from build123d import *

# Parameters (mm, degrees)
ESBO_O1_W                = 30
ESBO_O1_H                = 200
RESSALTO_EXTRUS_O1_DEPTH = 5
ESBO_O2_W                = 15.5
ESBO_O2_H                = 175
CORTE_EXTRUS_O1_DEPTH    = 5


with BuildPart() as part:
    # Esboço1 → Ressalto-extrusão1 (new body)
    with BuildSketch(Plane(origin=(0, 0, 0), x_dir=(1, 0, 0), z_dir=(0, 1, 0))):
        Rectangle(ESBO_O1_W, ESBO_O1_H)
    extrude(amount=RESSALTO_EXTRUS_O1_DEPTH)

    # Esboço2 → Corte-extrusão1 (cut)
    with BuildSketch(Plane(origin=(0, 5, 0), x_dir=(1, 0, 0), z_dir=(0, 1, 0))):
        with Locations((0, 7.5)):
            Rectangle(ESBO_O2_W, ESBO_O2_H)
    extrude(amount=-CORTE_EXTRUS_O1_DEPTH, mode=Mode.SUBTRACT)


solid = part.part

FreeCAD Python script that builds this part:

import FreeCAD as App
import Part
import Sketcher
Q = App.Units.Quantity

doc = App.newDocument("Part")
body = doc.addObject("PartDesign::Body", "Body")

sketch1 = doc.addObject("Sketcher::SketchObject", "Sketch")
body.addObject(sketch1)
sketch1.AttachmentSupport = (doc.XZ_Plane, [""])
sketch1.MapMode = "FlatFace"
sketch1.addGeometry(Part.LineSegment(App.Vector(-15, -100, 0), App.Vector(-15, 100, 0)), False)
sketch1.addGeometry(Part.LineSegment(App.Vector(-15, 100, 0), App.Vector(15, 100, 0)), False)
sketch1.addGeometry(Part.LineSegment(App.Vector(15, 100, 0), App.Vector(15, -100, 0)), False)
sketch1.addGeometry(Part.LineSegment(App.Vector(15, -100, 0), App.Vector(-15, -100, 0)), False)
sketch1.addConstraint(Sketcher.Constraint("Coincident", 0, 2, 1, 1))
sketch1.addConstraint(Sketcher.Constraint("Coincident", 1, 2, 2, 1))
sketch1.addConstraint(Sketcher.Constraint("Coincident", 2, 2, 3, 1))
sketch1.addConstraint(Sketcher.Constraint("Coincident", 3, 2, 0, 1))
sketch1.addConstraint(Sketcher.Constraint("Vertical", 0))
sketch1.addConstraint(Sketcher.Constraint("Horizontal", 1))
sketch1.addConstraint(Sketcher.Constraint("Vertical", 2))
sketch1.addConstraint(Sketcher.Constraint("Horizontal", 3))
sketch1.addConstraint(Sketcher.Constraint("Symmetric", 0, 2, 2, 2, -1, 1))
sketch1.addConstraint(Sketcher.Constraint("DistanceX", 1, 1, 1, 2, Q("30 mm")))
sketch1.addConstraint(Sketcher.Constraint("DistanceY", 0, 1, 0, 2, Q("200 mm")))
pad1 = doc.addObject("PartDesign::Pad", "Pad")
body.addObject(pad1)
pad1.Profile = sketch1
pad1.Length = 5
pad1.Reversed = True

sketch2 = doc.addObject("Sketcher::SketchObject", "Sketch001")
body.addObject(sketch2)
sketch2.AttachmentSupport = (doc.XZ_Plane, [""])
sketch2.MapMode = "FlatFace"
sketch2.AttachmentOffset = App.Placement(App.Vector(0, 0, -5), App.Rotation())
sketch2.addGeometry(Part.LineSegment(App.Vector(-8, -95, 0), App.Vector(-8, 80, 0)), False)
sketch2.addGeometry(Part.LineSegment(App.Vector(-8, 80, 0), App.Vector(8, 80, 0)), False)
sketch2.addGeometry(Part.LineSegment(App.Vector(8, 80, 0), App.Vector(8, -95, 0)), False)
sketch2.addGeometry(Part.LineSegment(App.Vector(8, -95, 0), App.Vector(-8, -95, 0)), False)
sketch2.addConstraint(Sketcher.Constraint("Coincident", 0, 2, 1, 1))
sketch2.addConstraint(Sketcher.Constraint("Coincident", 1, 2, 2, 1))
sketch2.addConstraint(Sketcher.Constraint("Coincident", 2, 2, 3, 1))
sketch2.addConstraint(Sketcher.Constraint("Coincident", 3, 2, 0, 1))
sketch2.addConstraint(Sketcher.Constraint("Vertical", 0))
sketch2.addConstraint(Sketcher.Constraint("Horizontal", 1))
sketch2.addConstraint(Sketcher.Constraint("Vertical", 2))
sketch2.addConstraint(Sketcher.Constraint("Horizontal", 3))
sketch2.addConstraint(Sketcher.Constraint("DistanceY", 0, 1, 0, 2, Q("175 mm")))
sketch2.addConstraint(Sketcher.Constraint("DistanceX", 1, 1, 1, 2, Q("15.5 mm")))
sketch2.addConstraint(Sketcher.Constraint("DistanceY", -1, 1, 0, 2, Q("80 mm")))
sketch2.addConstraint(Sketcher.Constraint("DistanceX", 0, 2, -1, 1, Q("7.75 mm")))
pocket1 = doc.addObject("PartDesign::Pocket", "Pocket")
body.addObject(pocket1)
pocket1.Profile = sketch2
pocket1.Length = 5
pocket1.Reversed = True

doc.recompute()
